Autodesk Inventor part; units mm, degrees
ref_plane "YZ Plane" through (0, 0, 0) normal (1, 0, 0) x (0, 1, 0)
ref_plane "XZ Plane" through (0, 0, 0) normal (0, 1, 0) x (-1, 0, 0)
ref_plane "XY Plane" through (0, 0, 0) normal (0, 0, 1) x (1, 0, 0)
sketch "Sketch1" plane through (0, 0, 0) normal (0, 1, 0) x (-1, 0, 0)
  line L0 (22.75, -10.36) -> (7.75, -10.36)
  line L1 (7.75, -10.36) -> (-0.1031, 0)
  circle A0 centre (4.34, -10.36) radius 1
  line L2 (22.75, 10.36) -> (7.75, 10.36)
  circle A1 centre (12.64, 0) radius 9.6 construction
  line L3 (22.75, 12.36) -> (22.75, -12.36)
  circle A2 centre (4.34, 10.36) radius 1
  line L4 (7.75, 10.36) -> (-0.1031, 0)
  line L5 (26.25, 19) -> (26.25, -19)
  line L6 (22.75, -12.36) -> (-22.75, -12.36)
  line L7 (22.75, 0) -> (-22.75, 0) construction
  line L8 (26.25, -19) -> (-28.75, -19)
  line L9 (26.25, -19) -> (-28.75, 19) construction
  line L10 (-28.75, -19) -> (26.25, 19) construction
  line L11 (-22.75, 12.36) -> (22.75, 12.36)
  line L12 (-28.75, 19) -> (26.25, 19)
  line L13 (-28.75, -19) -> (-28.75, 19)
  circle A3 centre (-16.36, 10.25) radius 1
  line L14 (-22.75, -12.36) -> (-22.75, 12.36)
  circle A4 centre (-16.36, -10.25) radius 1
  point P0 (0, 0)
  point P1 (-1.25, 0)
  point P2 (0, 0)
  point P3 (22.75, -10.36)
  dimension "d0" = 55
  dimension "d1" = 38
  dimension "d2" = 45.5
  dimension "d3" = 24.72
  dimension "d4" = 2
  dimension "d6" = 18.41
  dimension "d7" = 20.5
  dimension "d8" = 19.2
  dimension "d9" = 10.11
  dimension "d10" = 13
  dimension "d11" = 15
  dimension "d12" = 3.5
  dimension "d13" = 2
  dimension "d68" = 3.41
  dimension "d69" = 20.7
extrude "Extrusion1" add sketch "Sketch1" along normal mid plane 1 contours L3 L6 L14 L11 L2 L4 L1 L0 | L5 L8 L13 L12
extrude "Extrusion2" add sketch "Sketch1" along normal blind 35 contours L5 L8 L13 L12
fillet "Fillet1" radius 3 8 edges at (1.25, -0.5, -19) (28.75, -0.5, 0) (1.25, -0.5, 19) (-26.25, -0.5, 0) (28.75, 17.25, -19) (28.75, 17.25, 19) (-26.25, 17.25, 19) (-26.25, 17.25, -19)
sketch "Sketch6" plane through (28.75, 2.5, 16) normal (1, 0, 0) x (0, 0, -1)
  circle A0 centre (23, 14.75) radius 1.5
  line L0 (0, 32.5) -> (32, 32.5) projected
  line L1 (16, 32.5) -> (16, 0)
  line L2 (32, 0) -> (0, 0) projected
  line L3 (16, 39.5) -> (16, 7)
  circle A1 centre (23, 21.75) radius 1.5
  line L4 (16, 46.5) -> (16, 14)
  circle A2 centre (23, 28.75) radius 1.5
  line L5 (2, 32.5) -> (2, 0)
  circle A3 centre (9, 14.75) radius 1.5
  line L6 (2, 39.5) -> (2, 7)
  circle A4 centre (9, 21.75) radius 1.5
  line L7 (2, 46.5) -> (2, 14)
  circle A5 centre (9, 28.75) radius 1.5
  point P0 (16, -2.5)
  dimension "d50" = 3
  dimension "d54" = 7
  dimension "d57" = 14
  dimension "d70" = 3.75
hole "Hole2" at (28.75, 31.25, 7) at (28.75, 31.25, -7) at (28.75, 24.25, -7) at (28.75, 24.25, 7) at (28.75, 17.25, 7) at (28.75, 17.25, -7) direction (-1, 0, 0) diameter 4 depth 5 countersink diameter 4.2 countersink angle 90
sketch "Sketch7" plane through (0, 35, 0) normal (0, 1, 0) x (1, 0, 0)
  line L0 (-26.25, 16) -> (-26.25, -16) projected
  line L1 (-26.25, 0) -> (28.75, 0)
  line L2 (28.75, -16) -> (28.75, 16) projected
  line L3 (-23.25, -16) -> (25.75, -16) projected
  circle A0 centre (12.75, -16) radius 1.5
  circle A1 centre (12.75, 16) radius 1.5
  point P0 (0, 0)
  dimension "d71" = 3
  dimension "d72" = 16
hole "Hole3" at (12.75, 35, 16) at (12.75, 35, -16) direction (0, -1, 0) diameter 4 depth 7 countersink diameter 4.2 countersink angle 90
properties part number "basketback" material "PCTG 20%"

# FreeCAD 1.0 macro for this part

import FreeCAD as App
import Part
import Sketcher

V = App.Vector
Q = App.Units.Quantity


def edges_at(feature, points):
    """Names of the edges that pass closest to the given points."""
    edges = feature.Shape.Edges
    near = lambda p: min(range(len(edges)), key=lambda i: edges[i].distToShape(Part.Vertex(*p))[0])
    return sorted({f"Edge{near(p) + 1}" for p in points})


def add_polygon(sketch, points):
    """Adds a closed chain of lines whose ends are joined by coincident constraints."""
    first, n = sketch.GeometryCount, len(points)
    for a, b in zip(points, points[1:] + points[:1]):
        sketch.addGeometry(Part.LineSegment(App.Vector(*a, 0), App.Vector(*b, 0)), False)
    for i in range(n):
        sketch.addConstraint(Sketcher.Constraint("Coincident", first + i, 2, first + (i + 1) % n, 1))

doc = App.newDocument("Part")
params = doc.addObject("Spreadsheet::Sheet", "Params")
for row, (alias, value) in enumerate([
    ("sketch1_diameter", "2 mm"),
    ("sketch1_width", "55 mm"),
    ("sketch1_width2", "15 mm"),
    ("sketch1_height", "38 mm"),
    ("sketch1_length", "13 mm"),
    ("pad1_length", "1 mm"),
    ("sketch2_width", "55 mm"),
    ("sketch2_height", "38 mm"),
    ("sketch2_width2", "45.5 mm"),
    ("sketch2_height2", "24.72 mm"),
    ("pad2_length", "35 mm"),
    ("fillet_radius", "3 mm"),
    ("sketch3_diameter", "4 mm"),
    ("hole_diameter", "4 mm"),
    ("hole_depth", "5 mm"),
    ("hole_csink_diameter", "4.2 mm"),
    ("sketch4_diameter", "4 mm"),
    ("hole2_diameter", "4 mm"),
    ("hole2_depth", "7 mm"),
    ("hole2_csink_diameter", "4.2 mm"),
], start=1):
    params.set(f"A{row}", alias)
    params.set(f"B{row}", "=" + value)
    params.setAlias(f"B{row}", alias)

body = doc.addObject("PartDesign::Body", "Body")

sketch1 = body.newObject("Sketcher::SketchObject", "Sketch")
sketch1.AttachmentSupport = (doc.getObject("XZ_Plane"), [""])
sketch1.MapMode = "FlatFace"
add_polygon(sketch1, [(-26.25, -19), (-26.25, 19), (28.75, 19), (28.75, -19)])
add_polygon(sketch1, [(-7.75, 10.36), (-22.75, 10.36), (-22.75, -10.36), (-7.75, -10.36), (0.1031, 0)])
sketch1.addGeometry(Part.Circle(V(16.36, -10.25, 0), V(0, 0, 1), 1), False)
sketch1.addGeometry(Part.Circle(V(-4.34, -10.36, 0), V(0, 0, 1), 1), False)
sketch1.addGeometry(Part.Circle(V(16.36, 10.25, 0), V(0, 0, 1), 1), False)
sketch1.addGeometry(Part.Circle(V(-4.34, 10.36, 0), V(0, 0, 1), 1), False)
sketch1.addConstraint([
    Sketcher.Constraint("Vertical", 0),
    Sketcher.Constraint("Horizontal", 1),
    Sketcher.Constraint("Vertical", 2),
    Sketcher.Constraint("Horizontal", 3),
    Sketcher.Constraint("Horizontal", 4),
    Sketcher.Constraint("Vertical", 5),
    Sketcher.Constraint("Horizontal", 6),
    Sketcher.Constraint("Equal", 9, 10),
    Sketcher.Constraint("Equal", 10, 11),
    Sketcher.Constraint("Equal", 11, 12),
    Sketcher.Constraint("Symmetric", 9, 3, 11, 3, -1),
    Sketcher.Constraint("Symmetric", 10, 3, 12, 3, -1),
    Sketcher.Constraint("Symmetric", 6, 2, 8, 2, -1),
    Sketcher.Constraint("PointOnObject", 7, 2, -1),
    Sketcher.Constraint("Horizontal", 12, 3, 4, 2),
    Sketcher.Constraint("Diameter", 9, Q("2 mm")),
    Sketcher.Constraint("DistanceX", 1, 1, 1, 2, Q("55 mm")),
    Sketcher.Constraint("DistanceX", 4, 2, 4, 1, Q("15 mm")),
    Sketcher.Constraint("DistanceY", 0, 1, 0, 2, Q("38 mm")),
    Sketcher.Constraint("Distance", 7, Q("13 mm")),
    Sketcher.Constraint("DistanceX", 10, 3, 9, 3, Q("20.7 mm")),
    Sketcher.Constraint("DistanceY", 9, 3, 11, 3, Q("20.5 mm")),
    Sketcher.Constraint("DistanceX", 0, 2, 4, 2, Q("3.5 mm")),
    Sketcher.Constraint("DistanceX", 4, 2, 12, 3, Q("18.41 mm")),
    Sketcher.Constraint("DistanceY", -1, 1, 0, 2, Q("19 mm")),
    Sketcher.Constraint("DistanceY", 5, 2, 5, 1, Q("20.72 mm")),
    Sketcher.Constraint("DistanceX", -1, 1, 9, 3, Q("16.36 mm")),
])
sketch1.setExpression("Constraints[24]", "Params.sketch1_diameter")
sketch1.setExpression("Constraints[25]", "Params.sketch1_width")
sketch1.setExpression("Constraints[26]", "Params.sketch1_width2")
sketch1.setExpression("Constraints[27]", "Params.sketch1_height")
sketch1.setExpression("Constraints[28]", "Params.sketch1_length")
pad1 = body.newObject("PartDesign::Pad", "Pad")
pad1.Profile = sketch1
pad1.setExpression("Length", "Params.pad1_length")
pad1.Midplane = True

sketch2 = body.newObject("Sketcher::SketchObject", "Sketch001")
sketch2.AttachmentSupport = (doc.getObject("XZ_Plane"), [""])
sketch2.MapMode = "FlatFace"
add_polygon(sketch2, [(-26.25, -19), (-26.25, 19), (28.75, 19), (28.75, -19)])
add_polygon(sketch2, [(-22.75, 12.36), (-22.75, -12.36), (22.75, -12.36), (22.75, 12.36)])
sketch2.addConstraint([
    Sketcher.Constraint("Vertical", 0),
    Sketcher.Constraint("Horizontal", 1),
    Sketcher.Constraint("Vertical", 2),
    Sketcher.Constraint("Horizontal", 3),
    Sketcher.Constraint("Vertical", 4),
    Sketcher.Constraint("Horizontal", 5),
    Sketcher.Constraint("Vertical", 6),
    Sketcher.Constraint("Horizontal", 7),
    Sketcher.Constraint("Symmetric", 4, 2, 6, 2, -1, 1),
    Sketcher.Constraint("DistanceX", 1, 1, 1, 2, Q("55 mm")),
    Sketcher.Constraint("DistanceY", 0, 1, 0, 2, Q("38 mm")),
    Sketcher.Constraint("DistanceX", 5, 1, 5, 2, Q("45.5 mm")),
    Sketcher.Constraint("DistanceY", 4, 2, 4, 1, Q("24.72 mm")),
    Sketcher.Constraint("DistanceX", 3, 2, 4, 2, Q("3.5 mm")),
    Sketcher.Constraint("DistanceY", -1, 1, 0, 2, Q("19 mm")),
])
sketch2.setExpression("Constraints[17]", "Params.sketch2_width")
sketch2.setExpression("Constraints[18]", "Params.sketch2_height")
sketch2.setExpression("Constraints[19]", "Params.sketch2_width2")
sketch2.setExpression("Constraints[20]", "Params.sketch2_height2")
pad2 = body.newObject("PartDesign::Pad", "Pad001")
pad2.Profile = sketch2
pad2.setExpression("Length", "Params.pad2_length")
pad2.Reversed = True
doc.recompute()

fillet = body.newObject("PartDesign::Fillet", "Fillet")
fillet.Base = (pad2, edges_at(pad2, [
    (1.25, -0.5, -19),
    (28.75, -0.5, 0),
    (1.25, -0.5, 19),
    (-26.25, -0.5, 0),
    (28.75, 17.25, -19),
    (28.75, 17.25, 19),
    (-26.25, 17.25, 19),
    (-26.25, 17.25, -19),
]))
fillet.setExpression("Radius", "Params.fillet_radius")

sketch3 = body.newObject("Sketcher::SketchObject", "Sketch002")
sketch3.AttachmentSupport = (doc.getObject("YZ_Plane"), [""])
sketch3.MapMode = "FlatFace"
sketch3.AttachmentOffset = App.Placement(V(0, 0, 28.75), App.Rotation())
sketch3.addGeometry([
    Part.Circle(V(31.25, 7, 0), V(0, 0, 1), 2),
    Part.Circle(V(31.25, -7, 0), V(0, 0, 1), 2),
    Part.Circle(V(24.25, -7, 0), V(0, 0, 1), 2),
    Part.Circle(V(24.25, 7, 0), V(0, 0, 1), 2),
    Part.Circle(V(17.25, 7, 0), V(0, 0, 1), 2),
    Part.Circle(V(17.25, -7, 0), V(0, 0, 1), 2),
], False)
sketch3.addConstraint([
    Sketcher.Constraint("Equal", 0, 1),
    Sketcher.Constraint("Equal", 1, 2),
    Sketcher.Constraint("Equal", 2, 3),
    Sketcher.Constraint("Equal", 3, 4),
    Sketcher.Constraint("Equal", 4, 5),
    Sketcher.Constraint("Symmetric", 0, 3, 1, 3, -1),
    Sketcher.Constraint("Symmetric", 2, 3, 3, 3, -1),
    Sketcher.Constraint("Symmetric", 4, 3, 5, 3, -1),
    Sketcher.Constraint("Horizontal", 1, 3, 2, 3),
    Sketcher.Constraint("Horizontal", 3, 3, 4, 3),
    Sketcher.Constraint("Diameter", 0, Q("4 mm")),
    Sketcher.Constraint("DistanceY", -1, 1, 0, 3, Q("7 mm")),
    Sketcher.Constraint("DistanceX", 2, 3, 1, 3, Q("7 mm")),
    Sketcher.Constraint("DistanceX", 4, 3, 3, 3, Q("7 mm")),
    Sketcher.Constraint("DistanceX", -1, 1, 0, 3, Q("31.25 mm")),
])
sketch3.setExpression("Constraints[10]", "Params.sketch3_diameter")
doc.recompute()
hole = body.newObject("PartDesign::Hole", "Hole")
hole.Profile = sketch3
hole.ThreadType = "None"
hole.setExpression("Diameter", "Params.hole_diameter")
hole.DepthType = "Dimension"
hole.setExpression("Depth", "Params.hole_depth")
hole.DrillPoint = "Flat"
hole.HoleCutType = "Countersink"
hole.setExpression("HoleCutDiameter", "Params.hole_csink_diameter")
hole.HoleCutCountersinkAngle = 90

sketch4 = body.newObject("Sketcher::SketchObject", "Sketch003")
sketch4.AttachmentSupport = (doc.getObject("XZ_Plane"), [""])
sketch4.MapMode = "FlatFace"
sketch4.AttachmentOffset = App.Placement(V(0, 0, -35), App.Rotation())
sketch4.addGeometry([
    Part.Circle(V(12.75, 16, 0), V(0, 0, 1), 2),
    Part.Circle(V(12.75, -16, 0), V(0, 0, 1), 2),
], False)
sketch4.addConstraint([
    Sketcher.Constraint("Equal", 0, 1),
    Sketcher.Constraint("Symmetric", 0, 3, 1, 3, -1),
    Sketcher.Constraint("Diameter", 0, Q("4 mm")),
    Sketcher.Constraint("DistanceY", -1, 1, 0, 3, Q("16 mm")),
    Sketcher.Constraint("DistanceX", -1, 1, 0, 3, Q("12.75 mm")),
])
sketch4.setExpression("Constraints[2]", "Params.sketch4_diameter")
doc.recompute()
hole2 = body.newObject("PartDesign::Hole", "Hole001")
hole2.Profile = sketch4
hole2.ThreadType = "None"
hole2.setExpression("Diameter", "Params.hole2_diameter")
hole2.DepthType = "Dimension"
hole2.setExpression("Depth", "Params.hole2_depth")
hole2.DrillPoint = "Flat"
hole2.HoleCutType = "Countersink"
hole2.setExpression("HoleCutDiameter", "Params.hole2_csink_diameter")
hole2.HoleCutCountersinkAngle = 90
hole2.Reversed = True

doc.recompute()
